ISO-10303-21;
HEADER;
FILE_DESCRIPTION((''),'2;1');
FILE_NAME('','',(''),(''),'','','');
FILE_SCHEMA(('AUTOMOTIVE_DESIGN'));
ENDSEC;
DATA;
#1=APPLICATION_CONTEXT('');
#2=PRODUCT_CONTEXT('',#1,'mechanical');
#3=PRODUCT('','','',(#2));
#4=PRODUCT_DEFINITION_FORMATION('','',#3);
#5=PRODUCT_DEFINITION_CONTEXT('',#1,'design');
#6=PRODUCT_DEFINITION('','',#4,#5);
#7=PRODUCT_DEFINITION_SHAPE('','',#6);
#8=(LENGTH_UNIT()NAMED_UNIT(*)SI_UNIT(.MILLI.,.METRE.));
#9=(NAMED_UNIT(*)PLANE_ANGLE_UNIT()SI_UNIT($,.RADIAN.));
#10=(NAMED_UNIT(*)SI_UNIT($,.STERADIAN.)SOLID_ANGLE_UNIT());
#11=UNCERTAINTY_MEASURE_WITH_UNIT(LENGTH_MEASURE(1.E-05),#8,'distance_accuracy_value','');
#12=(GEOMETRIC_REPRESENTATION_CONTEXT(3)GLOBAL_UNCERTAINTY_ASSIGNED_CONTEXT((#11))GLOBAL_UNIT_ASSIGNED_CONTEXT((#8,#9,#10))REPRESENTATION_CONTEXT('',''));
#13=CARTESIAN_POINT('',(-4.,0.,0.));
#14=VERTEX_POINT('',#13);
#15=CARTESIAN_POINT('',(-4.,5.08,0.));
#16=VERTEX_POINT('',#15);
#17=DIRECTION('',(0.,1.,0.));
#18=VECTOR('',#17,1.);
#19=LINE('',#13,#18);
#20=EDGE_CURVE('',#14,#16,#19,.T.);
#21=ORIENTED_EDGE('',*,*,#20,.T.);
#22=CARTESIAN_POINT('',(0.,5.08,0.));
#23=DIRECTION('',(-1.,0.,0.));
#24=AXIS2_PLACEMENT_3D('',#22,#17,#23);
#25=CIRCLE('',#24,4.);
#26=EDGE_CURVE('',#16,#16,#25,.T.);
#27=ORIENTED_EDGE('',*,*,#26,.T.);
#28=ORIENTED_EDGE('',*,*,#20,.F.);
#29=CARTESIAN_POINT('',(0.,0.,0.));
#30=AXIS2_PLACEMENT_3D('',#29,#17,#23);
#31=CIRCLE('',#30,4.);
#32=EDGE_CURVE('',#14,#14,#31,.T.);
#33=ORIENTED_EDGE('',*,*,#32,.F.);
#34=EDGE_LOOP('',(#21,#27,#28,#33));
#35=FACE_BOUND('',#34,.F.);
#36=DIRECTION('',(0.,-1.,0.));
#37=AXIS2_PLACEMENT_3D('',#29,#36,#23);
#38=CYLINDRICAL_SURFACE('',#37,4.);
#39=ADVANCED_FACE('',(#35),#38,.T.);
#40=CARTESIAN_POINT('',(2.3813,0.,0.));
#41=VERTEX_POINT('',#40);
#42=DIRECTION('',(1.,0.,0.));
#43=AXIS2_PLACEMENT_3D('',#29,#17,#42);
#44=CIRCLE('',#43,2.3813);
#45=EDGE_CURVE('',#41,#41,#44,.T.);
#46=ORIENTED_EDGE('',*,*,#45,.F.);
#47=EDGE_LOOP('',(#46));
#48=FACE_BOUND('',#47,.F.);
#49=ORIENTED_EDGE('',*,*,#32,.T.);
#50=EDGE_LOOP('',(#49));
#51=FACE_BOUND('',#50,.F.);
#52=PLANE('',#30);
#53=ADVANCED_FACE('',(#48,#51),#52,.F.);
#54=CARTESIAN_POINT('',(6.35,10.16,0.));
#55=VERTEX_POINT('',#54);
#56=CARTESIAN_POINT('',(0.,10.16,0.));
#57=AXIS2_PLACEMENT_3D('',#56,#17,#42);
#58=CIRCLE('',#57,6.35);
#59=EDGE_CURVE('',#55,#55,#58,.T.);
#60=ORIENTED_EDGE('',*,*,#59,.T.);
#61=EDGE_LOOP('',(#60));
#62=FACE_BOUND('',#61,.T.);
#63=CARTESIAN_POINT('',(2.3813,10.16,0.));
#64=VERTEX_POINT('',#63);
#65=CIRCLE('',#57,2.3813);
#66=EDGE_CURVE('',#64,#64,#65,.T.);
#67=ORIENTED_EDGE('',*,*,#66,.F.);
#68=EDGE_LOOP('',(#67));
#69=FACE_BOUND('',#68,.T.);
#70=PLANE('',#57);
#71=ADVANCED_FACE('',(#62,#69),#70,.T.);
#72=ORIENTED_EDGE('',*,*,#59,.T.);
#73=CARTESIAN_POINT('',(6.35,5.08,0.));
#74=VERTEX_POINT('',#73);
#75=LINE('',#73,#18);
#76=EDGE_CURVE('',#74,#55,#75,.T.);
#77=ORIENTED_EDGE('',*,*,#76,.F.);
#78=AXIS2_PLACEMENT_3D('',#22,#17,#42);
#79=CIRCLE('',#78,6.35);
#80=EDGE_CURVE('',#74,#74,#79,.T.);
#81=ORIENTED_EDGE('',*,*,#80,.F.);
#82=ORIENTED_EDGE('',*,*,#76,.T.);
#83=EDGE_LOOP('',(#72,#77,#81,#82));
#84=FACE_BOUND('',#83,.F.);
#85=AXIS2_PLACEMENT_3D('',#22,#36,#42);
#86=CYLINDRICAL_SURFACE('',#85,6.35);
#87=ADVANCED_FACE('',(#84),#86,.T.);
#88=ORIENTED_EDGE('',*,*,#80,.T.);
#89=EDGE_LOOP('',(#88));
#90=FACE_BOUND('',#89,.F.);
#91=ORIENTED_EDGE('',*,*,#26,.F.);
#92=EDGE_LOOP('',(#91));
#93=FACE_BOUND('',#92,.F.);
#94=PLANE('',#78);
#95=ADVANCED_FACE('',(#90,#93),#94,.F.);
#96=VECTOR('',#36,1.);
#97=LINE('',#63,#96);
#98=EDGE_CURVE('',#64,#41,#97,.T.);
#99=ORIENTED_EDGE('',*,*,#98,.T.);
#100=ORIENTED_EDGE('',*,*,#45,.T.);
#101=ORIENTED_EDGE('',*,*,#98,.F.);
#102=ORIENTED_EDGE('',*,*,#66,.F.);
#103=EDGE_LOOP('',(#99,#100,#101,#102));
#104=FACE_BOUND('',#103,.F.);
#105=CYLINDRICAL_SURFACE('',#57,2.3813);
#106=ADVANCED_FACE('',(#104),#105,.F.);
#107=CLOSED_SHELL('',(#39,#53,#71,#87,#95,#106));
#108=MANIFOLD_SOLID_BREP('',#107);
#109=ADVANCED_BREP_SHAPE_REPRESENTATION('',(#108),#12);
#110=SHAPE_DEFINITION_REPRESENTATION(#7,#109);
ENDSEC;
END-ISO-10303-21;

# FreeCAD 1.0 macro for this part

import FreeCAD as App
import Part
import Sketcher
Q = App.Units.Quantity

doc = App.newDocument("Part")
params = doc.addObject("Spreadsheet::Sheet", "Params")
for row, (alias, value) in enumerate([
    ("pad1_length", "0.2 in"),
    ("sketch2_diameter", "0.5 in"),
    ("pad2_length", "0.2 in"),
    ("sketch3_diameter", "0.1875 in"),
], start=1):
    params.set(f"A{row}", alias)
    params.set(f"B{row}", "=" + value)
    params.setAlias(f"B{row}", alias)

body = doc.addObject("PartDesign::Body", "Body")

# Sketch on XZ plane
sketch1 = body.newObject("Sketcher::SketchObject", "Sketch")
sketch1.AttachmentSupport = (doc.getObject("XZ_Plane"), [""])
sketch1.MapMode = "FlatFace"
sketch1.addGeometry(Part.Circle(App.Vector(0, 0, 0), App.Vector(0, 0, 1), 4), False)
sketch1.addConstraint(Sketcher.Constraint("Coincident", 0, 3, -1, 1))
sketch1.addConstraint(Sketcher.Constraint("Diameter", 0, Q("8 mm")))
pad1 = body.newObject("PartDesign::Pad", "Pad")
pad1.Profile = sketch1
pad1.setExpression("Length", "Params.pad1_length")
pad1.Reversed = True

# Sketch on XZ plane
sketch2 = body.newObject("Sketcher::SketchObject", "Sketch001")
sketch2.AttachmentSupport = (doc.getObject("XZ_Plane"), [""])
sketch2.MapMode = "FlatFace"
sketch2.AttachmentOffset = App.Placement(App.Vector(0, 0, -0.2 * 25.4), App.Rotation())
sketch2.addGeometry(Part.Circle(App.Vector(0, 0, 0), App.Vector(0, 0, 1), 6), False)
sketch2.addConstraint(Sketcher.Constraint("Coincident", 0, 3, -1, 1))
sketch2.addConstraint(Sketcher.Constraint("Diameter", 0, Q("0.5 in")))
sketch2.setExpression("Constraints[1]", "Params.sketch2_diameter")
pad2 = body.newObject("PartDesign::Pad", "Pad001")
pad2.Profile = sketch2
pad2.setExpression("Length", "Params.pad2_length")
pad2.Reversed = True

# Sketch on XZ plane
sketch3 = body.newObject("Sketcher::SketchObject", "Sketch002")
sketch3.AttachmentSupport = (doc.getObject("XZ_Plane"), [""])
sketch3.MapMode = "FlatFace"
sketch3.AttachmentOffset = App.Placement(App.Vector(0, 0, -0.4 * 25.4), App.Rotation())
sketch3.addGeometry(Part.Circle(App.Vector(0, 0, 0), App.Vector(0, 0, 1), 2.4), False)
sketch3.addConstraint(Sketcher.Constraint("Coincident", 0, 3, -1, 1))
sketch3.addConstraint(Sketcher.Constraint("Diameter", 0, Q("0.1875 in")))
sketch3.setExpression("Constraints[1]", "Params.sketch3_diameter")
pocket1 = body.newObject("PartDesign::Pocket", "Pocket")
pocket1.Profile = sketch3
pocket1.Type = "ThroughAll"
pocket1.Reversed = True

doc.recompute()
